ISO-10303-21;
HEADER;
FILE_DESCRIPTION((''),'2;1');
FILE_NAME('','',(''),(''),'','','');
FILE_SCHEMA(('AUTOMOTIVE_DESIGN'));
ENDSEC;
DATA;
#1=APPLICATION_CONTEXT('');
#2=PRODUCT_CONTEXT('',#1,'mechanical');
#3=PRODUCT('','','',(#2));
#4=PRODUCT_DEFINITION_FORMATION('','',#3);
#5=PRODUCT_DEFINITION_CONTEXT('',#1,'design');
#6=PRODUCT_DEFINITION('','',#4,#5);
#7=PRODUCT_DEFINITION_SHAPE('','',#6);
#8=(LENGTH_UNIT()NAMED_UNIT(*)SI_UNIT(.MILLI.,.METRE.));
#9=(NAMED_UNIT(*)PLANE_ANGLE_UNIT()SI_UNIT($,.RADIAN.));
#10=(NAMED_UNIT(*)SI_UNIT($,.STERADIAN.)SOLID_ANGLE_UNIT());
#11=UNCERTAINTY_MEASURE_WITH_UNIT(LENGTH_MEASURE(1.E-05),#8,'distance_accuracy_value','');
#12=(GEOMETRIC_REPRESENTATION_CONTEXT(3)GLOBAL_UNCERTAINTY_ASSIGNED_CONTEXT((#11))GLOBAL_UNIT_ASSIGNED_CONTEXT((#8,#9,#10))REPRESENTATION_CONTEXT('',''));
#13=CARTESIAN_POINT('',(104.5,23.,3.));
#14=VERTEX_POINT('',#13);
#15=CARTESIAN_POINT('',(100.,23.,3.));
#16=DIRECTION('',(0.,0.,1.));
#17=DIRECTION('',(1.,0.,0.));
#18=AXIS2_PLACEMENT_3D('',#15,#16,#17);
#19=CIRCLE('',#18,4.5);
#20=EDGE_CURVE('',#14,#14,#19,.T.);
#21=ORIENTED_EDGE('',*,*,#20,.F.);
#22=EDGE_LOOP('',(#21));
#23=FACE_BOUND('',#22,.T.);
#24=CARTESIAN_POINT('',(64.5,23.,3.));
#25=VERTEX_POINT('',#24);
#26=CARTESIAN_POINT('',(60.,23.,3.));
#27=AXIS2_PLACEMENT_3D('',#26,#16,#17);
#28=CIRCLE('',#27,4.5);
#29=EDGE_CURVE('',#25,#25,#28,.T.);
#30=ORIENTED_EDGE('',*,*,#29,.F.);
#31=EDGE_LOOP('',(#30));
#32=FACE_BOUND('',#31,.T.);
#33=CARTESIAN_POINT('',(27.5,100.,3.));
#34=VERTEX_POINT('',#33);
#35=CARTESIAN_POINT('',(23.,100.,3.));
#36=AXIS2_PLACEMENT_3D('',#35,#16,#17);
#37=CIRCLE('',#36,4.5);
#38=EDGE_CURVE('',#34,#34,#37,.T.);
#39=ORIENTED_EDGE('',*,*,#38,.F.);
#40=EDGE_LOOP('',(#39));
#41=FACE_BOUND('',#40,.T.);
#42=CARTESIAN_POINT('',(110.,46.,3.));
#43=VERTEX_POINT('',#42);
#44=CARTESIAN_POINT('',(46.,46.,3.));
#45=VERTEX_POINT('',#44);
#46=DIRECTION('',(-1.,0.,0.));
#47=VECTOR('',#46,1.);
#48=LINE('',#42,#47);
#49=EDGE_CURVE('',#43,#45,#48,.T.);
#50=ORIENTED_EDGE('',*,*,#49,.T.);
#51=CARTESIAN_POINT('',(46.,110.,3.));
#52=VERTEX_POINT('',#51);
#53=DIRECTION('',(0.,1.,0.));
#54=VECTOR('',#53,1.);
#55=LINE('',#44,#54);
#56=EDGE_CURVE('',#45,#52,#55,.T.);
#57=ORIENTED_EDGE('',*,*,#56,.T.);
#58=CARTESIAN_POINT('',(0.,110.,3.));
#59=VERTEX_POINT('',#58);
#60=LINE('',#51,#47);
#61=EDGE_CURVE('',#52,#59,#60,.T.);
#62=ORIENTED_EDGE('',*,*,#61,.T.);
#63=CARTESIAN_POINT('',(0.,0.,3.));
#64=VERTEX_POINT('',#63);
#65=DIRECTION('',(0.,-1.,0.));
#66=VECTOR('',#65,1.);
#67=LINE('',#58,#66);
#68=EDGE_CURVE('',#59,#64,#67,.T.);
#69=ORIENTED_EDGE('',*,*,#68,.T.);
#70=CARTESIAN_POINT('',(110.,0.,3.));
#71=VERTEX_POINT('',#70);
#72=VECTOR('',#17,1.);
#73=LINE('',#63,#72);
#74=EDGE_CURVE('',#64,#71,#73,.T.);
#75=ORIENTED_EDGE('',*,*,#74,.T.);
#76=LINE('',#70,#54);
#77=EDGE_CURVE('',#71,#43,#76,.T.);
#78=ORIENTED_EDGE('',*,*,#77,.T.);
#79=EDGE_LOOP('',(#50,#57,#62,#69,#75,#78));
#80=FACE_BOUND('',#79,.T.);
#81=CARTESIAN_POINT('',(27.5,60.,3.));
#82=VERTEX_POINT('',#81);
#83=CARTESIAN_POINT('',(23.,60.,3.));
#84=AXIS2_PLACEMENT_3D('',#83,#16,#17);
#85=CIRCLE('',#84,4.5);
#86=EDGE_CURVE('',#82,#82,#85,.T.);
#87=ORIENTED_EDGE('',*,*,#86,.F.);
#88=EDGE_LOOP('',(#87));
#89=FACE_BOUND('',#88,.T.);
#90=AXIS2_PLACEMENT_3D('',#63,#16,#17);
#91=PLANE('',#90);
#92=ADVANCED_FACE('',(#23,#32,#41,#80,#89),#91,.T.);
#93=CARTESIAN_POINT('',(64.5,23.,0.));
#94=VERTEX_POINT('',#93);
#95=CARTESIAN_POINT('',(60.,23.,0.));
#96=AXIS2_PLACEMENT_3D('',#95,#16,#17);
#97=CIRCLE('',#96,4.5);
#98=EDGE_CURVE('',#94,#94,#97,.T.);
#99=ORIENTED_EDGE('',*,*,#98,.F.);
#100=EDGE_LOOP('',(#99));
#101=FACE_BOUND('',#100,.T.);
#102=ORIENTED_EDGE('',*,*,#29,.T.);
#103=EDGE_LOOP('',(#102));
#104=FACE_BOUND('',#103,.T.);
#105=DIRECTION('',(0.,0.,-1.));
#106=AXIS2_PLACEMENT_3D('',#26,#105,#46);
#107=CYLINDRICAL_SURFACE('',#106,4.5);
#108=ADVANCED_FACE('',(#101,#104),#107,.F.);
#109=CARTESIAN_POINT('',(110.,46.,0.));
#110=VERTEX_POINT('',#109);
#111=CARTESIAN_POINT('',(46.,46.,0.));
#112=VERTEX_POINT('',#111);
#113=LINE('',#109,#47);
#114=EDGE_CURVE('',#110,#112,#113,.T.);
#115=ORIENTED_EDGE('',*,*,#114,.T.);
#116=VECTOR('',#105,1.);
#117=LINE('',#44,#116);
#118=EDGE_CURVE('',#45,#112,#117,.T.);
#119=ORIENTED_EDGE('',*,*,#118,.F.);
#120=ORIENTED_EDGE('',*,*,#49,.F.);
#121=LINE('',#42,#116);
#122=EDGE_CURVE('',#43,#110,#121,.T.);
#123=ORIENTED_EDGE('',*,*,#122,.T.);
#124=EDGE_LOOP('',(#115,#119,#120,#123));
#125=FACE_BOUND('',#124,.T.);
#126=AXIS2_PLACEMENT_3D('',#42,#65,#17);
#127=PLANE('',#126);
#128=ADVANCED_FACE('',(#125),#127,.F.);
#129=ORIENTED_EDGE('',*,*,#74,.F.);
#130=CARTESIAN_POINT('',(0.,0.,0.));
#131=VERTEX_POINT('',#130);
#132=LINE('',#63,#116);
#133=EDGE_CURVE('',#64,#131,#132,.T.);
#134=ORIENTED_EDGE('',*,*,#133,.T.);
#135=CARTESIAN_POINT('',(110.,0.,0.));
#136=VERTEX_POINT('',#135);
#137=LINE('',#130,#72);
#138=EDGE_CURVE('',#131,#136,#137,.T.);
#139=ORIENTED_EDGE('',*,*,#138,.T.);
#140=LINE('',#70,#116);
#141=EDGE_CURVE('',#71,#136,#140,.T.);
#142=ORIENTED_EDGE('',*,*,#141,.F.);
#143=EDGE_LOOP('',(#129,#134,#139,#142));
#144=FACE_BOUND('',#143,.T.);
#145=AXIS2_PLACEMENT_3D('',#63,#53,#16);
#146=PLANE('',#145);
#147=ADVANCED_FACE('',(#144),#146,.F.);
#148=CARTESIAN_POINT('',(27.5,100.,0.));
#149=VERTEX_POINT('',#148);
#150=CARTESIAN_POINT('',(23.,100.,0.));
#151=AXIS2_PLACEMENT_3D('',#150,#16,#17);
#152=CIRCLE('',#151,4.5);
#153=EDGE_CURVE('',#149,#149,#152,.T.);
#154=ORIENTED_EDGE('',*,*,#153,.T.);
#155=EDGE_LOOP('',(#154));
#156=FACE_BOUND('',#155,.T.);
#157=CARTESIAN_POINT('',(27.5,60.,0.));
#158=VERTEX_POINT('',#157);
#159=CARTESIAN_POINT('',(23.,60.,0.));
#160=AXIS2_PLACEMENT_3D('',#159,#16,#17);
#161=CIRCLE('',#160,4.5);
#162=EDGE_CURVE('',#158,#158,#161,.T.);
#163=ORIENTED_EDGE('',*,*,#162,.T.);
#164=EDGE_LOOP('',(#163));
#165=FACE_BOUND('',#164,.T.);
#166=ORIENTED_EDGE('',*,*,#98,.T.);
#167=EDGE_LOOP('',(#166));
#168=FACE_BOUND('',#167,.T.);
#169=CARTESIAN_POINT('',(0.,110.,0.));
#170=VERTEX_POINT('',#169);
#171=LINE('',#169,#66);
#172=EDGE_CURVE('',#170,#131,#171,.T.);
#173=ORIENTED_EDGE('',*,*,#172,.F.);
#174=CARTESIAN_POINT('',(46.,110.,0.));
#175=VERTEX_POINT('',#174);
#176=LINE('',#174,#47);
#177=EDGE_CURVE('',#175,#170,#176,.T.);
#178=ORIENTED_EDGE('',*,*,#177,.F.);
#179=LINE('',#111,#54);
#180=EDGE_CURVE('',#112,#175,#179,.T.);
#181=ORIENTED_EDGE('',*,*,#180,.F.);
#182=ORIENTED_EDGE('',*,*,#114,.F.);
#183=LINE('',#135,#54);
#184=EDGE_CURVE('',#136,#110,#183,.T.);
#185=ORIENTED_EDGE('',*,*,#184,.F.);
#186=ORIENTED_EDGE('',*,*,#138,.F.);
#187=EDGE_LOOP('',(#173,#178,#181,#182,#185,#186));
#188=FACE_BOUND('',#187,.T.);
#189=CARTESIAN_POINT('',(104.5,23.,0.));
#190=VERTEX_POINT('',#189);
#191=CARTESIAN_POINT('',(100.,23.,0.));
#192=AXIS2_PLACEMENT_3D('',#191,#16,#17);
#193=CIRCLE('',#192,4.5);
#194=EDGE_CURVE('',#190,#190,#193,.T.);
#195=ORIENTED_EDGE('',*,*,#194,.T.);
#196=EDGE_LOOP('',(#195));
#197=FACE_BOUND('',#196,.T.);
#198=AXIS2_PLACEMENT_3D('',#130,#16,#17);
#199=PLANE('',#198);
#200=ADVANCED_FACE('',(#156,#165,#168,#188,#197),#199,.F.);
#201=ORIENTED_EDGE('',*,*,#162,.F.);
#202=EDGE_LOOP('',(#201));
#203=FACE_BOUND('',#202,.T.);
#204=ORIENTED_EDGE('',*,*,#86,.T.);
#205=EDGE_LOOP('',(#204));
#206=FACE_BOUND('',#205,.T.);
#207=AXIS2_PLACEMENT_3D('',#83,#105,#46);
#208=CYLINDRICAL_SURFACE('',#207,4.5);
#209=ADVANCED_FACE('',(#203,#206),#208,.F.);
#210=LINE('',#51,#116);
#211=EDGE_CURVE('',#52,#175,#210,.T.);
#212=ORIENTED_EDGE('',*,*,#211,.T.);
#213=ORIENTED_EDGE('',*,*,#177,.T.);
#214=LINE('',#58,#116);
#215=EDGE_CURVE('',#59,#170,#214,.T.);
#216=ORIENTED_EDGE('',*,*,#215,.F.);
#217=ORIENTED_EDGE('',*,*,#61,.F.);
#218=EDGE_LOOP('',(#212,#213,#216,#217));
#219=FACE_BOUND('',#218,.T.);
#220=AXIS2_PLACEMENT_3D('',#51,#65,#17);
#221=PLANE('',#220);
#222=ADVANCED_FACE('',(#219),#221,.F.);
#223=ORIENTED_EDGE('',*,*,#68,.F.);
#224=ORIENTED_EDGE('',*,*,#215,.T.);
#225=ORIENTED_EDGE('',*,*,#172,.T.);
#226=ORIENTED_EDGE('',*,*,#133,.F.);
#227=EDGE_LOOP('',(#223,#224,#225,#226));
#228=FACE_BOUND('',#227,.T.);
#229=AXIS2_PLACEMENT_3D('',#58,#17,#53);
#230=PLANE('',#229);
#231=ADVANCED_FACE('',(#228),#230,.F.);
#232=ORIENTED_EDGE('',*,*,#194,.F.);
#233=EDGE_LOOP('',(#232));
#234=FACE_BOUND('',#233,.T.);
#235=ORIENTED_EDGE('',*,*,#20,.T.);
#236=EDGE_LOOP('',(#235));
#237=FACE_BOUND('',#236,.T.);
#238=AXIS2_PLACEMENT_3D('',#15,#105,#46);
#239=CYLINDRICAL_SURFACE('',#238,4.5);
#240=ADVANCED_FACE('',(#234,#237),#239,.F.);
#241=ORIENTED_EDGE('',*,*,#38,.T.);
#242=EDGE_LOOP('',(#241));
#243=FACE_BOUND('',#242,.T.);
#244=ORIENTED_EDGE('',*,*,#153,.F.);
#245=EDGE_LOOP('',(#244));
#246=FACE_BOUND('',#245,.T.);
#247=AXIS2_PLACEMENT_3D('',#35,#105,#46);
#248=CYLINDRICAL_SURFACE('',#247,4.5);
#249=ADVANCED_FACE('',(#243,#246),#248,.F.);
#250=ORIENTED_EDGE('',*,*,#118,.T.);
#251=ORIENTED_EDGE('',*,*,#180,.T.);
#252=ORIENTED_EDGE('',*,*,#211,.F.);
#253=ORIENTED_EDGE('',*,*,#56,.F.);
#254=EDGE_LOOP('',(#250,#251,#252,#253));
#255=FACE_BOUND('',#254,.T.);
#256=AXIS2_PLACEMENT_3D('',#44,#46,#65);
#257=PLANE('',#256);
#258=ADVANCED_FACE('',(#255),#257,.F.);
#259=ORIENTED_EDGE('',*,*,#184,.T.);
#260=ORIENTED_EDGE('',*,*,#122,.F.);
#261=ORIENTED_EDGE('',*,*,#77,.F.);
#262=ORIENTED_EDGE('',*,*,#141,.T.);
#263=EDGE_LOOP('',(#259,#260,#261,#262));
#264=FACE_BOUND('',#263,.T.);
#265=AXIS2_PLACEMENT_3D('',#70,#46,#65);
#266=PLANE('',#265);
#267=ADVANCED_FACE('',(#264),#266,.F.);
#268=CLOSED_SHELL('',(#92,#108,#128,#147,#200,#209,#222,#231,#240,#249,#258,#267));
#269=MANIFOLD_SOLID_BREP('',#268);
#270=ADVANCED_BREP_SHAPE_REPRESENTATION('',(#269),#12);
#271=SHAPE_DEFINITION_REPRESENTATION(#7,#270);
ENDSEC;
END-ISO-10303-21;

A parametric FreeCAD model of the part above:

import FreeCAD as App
import Part
import Sketcher
from FreeCAD import Vector

doc = App.newDocument("Part")
body = doc.addObject("PartDesign::Body", "Body")

# Sketch on XY plane
sketch1 = doc.addObject("Sketcher::SketchObject", "Sketch")
body.addObject(sketch1)
sketch1.AttachmentSupport = (doc.XY_Plane, [""])
sketch1.MapMode = "FlatFace"
sketch1.addGeometry(Part.LineSegment(Vector(0, 110, 0), Vector(0, 0, 0)), False)
sketch1.addGeometry(Part.LineSegment(Vector(0, 0, 0), Vector(110, 0, 0)), False)
sketch1.addGeometry(Part.LineSegment(Vector(110, 0, 0), Vector(110, 46, 0)), False)
sketch1.addGeometry(Part.LineSegment(Vector(110, 46, 0), Vector(46, 46, 0)), False)
sketch1.addGeometry(Part.LineSegment(Vector(46, 46, 0), Vector(46, 110, 0)), False)
sketch1.addGeometry(Part.LineSegment(Vector(46, 110, 0), Vector(0, 110, 0)), False)
sketch1.addGeometry(Part.Circle(Vector(60, 23, 0), Vector(0, 0, 1), 4.5), False)
sketch1.addGeometry(Part.Circle(Vector(23, 60, 0), Vector(0, 0, 1), 4.5), False)
sketch1.addGeometry(Part.Circle(Vector(100, 23, 0), Vector(0, 0, 1), 4.5), False)
sketch1.addGeometry(Part.Circle(Vector(23, 100, 0), Vector(0, 0, 1), 4.5), False)
sketch1.addConstraint(Sketcher.Constraint("Coincident", 0, 2, 1, 1))
sketch1.addConstraint(Sketcher.Constraint("Coincident", 1, 2, 2, 1))
sketch1.addConstraint(Sketcher.Constraint("Coincident", 2, 2, 3, 1))
sketch1.addConstraint(Sketcher.Constraint("Coincident", 3, 2, 4, 1))
sketch1.addConstraint(Sketcher.Constraint("Coincident", 4, 2, 5, 1))
sketch1.addConstraint(Sketcher.Constraint("Coincident", 5, 2, 0, 1))
sketch1.addConstraint(Sketcher.Constraint("Vertical", 0))
sketch1.addConstraint(Sketcher.Constraint("Horizontal", 1))
sketch1.addConstraint(Sketcher.Constraint("Vertical", 2))
sketch1.addConstraint(Sketcher.Constraint("Horizontal", 3))
sketch1.addConstraint(Sketcher.Constraint("Vertical", 4))
sketch1.addConstraint(Sketcher.Constraint("Horizontal", 5))
sketch1.addConstraint(Sketcher.Constraint("Coincident", 0, 2, -1, 1))
sketch1.addConstraint(Sketcher.Constraint("Equal", 6, 7))
sketch1.addConstraint(Sketcher.Constraint("Equal", 7, 8))
sketch1.addConstraint(Sketcher.Constraint("Equal", 8, 9))
sketch1.addConstraint(Sketcher.Constraint("Horizontal", 6, 3, 8, 3))
sketch1.addConstraint(Sketcher.Constraint("Vertical", 7, 3, 9, 3))
sketch1.addConstraint(Sketcher.Constraint("Equal", 1, 0))
sketch1.addConstraint(Sketcher.Constraint("Equal", 5, 2))
sketch1.addConstraint(Sketcher.Constraint("Diameter", 6, 9.0))
sketch1.addConstraint(Sketcher.Constraint("DistanceX", 1, 1, 1, 2, 110.0))
sketch1.addConstraint(Sketcher.Constraint("DistanceX", 3, 2, 3, 1, 64.0))
sketch1.addConstraint(Sketcher.Constraint("DistanceX", -1, 1, 6, 3, 60.0))
sketch1.addConstraint(Sketcher.Constraint("DistanceY", -1, 1, 6, 3, 23.0))
sketch1.addConstraint(Sketcher.Constraint("DistanceX", -1, 1, 7, 3, 23.0))
sketch1.addConstraint(Sketcher.Constraint("DistanceY", -1, 1, 7, 3, 60.0))
sketch1.addConstraint(Sketcher.Constraint("DistanceX", -1, 1, 8, 3, 100.0))
sketch1.addConstraint(Sketcher.Constraint("DistanceY", -1, 1, 9, 3, 100.0))
pad1 = doc.addObject("PartDesign::Pad", "Pad")
body.addObject(pad1)
pad1.Profile = sketch1
pad1.Length = 3

doc.recompute()
